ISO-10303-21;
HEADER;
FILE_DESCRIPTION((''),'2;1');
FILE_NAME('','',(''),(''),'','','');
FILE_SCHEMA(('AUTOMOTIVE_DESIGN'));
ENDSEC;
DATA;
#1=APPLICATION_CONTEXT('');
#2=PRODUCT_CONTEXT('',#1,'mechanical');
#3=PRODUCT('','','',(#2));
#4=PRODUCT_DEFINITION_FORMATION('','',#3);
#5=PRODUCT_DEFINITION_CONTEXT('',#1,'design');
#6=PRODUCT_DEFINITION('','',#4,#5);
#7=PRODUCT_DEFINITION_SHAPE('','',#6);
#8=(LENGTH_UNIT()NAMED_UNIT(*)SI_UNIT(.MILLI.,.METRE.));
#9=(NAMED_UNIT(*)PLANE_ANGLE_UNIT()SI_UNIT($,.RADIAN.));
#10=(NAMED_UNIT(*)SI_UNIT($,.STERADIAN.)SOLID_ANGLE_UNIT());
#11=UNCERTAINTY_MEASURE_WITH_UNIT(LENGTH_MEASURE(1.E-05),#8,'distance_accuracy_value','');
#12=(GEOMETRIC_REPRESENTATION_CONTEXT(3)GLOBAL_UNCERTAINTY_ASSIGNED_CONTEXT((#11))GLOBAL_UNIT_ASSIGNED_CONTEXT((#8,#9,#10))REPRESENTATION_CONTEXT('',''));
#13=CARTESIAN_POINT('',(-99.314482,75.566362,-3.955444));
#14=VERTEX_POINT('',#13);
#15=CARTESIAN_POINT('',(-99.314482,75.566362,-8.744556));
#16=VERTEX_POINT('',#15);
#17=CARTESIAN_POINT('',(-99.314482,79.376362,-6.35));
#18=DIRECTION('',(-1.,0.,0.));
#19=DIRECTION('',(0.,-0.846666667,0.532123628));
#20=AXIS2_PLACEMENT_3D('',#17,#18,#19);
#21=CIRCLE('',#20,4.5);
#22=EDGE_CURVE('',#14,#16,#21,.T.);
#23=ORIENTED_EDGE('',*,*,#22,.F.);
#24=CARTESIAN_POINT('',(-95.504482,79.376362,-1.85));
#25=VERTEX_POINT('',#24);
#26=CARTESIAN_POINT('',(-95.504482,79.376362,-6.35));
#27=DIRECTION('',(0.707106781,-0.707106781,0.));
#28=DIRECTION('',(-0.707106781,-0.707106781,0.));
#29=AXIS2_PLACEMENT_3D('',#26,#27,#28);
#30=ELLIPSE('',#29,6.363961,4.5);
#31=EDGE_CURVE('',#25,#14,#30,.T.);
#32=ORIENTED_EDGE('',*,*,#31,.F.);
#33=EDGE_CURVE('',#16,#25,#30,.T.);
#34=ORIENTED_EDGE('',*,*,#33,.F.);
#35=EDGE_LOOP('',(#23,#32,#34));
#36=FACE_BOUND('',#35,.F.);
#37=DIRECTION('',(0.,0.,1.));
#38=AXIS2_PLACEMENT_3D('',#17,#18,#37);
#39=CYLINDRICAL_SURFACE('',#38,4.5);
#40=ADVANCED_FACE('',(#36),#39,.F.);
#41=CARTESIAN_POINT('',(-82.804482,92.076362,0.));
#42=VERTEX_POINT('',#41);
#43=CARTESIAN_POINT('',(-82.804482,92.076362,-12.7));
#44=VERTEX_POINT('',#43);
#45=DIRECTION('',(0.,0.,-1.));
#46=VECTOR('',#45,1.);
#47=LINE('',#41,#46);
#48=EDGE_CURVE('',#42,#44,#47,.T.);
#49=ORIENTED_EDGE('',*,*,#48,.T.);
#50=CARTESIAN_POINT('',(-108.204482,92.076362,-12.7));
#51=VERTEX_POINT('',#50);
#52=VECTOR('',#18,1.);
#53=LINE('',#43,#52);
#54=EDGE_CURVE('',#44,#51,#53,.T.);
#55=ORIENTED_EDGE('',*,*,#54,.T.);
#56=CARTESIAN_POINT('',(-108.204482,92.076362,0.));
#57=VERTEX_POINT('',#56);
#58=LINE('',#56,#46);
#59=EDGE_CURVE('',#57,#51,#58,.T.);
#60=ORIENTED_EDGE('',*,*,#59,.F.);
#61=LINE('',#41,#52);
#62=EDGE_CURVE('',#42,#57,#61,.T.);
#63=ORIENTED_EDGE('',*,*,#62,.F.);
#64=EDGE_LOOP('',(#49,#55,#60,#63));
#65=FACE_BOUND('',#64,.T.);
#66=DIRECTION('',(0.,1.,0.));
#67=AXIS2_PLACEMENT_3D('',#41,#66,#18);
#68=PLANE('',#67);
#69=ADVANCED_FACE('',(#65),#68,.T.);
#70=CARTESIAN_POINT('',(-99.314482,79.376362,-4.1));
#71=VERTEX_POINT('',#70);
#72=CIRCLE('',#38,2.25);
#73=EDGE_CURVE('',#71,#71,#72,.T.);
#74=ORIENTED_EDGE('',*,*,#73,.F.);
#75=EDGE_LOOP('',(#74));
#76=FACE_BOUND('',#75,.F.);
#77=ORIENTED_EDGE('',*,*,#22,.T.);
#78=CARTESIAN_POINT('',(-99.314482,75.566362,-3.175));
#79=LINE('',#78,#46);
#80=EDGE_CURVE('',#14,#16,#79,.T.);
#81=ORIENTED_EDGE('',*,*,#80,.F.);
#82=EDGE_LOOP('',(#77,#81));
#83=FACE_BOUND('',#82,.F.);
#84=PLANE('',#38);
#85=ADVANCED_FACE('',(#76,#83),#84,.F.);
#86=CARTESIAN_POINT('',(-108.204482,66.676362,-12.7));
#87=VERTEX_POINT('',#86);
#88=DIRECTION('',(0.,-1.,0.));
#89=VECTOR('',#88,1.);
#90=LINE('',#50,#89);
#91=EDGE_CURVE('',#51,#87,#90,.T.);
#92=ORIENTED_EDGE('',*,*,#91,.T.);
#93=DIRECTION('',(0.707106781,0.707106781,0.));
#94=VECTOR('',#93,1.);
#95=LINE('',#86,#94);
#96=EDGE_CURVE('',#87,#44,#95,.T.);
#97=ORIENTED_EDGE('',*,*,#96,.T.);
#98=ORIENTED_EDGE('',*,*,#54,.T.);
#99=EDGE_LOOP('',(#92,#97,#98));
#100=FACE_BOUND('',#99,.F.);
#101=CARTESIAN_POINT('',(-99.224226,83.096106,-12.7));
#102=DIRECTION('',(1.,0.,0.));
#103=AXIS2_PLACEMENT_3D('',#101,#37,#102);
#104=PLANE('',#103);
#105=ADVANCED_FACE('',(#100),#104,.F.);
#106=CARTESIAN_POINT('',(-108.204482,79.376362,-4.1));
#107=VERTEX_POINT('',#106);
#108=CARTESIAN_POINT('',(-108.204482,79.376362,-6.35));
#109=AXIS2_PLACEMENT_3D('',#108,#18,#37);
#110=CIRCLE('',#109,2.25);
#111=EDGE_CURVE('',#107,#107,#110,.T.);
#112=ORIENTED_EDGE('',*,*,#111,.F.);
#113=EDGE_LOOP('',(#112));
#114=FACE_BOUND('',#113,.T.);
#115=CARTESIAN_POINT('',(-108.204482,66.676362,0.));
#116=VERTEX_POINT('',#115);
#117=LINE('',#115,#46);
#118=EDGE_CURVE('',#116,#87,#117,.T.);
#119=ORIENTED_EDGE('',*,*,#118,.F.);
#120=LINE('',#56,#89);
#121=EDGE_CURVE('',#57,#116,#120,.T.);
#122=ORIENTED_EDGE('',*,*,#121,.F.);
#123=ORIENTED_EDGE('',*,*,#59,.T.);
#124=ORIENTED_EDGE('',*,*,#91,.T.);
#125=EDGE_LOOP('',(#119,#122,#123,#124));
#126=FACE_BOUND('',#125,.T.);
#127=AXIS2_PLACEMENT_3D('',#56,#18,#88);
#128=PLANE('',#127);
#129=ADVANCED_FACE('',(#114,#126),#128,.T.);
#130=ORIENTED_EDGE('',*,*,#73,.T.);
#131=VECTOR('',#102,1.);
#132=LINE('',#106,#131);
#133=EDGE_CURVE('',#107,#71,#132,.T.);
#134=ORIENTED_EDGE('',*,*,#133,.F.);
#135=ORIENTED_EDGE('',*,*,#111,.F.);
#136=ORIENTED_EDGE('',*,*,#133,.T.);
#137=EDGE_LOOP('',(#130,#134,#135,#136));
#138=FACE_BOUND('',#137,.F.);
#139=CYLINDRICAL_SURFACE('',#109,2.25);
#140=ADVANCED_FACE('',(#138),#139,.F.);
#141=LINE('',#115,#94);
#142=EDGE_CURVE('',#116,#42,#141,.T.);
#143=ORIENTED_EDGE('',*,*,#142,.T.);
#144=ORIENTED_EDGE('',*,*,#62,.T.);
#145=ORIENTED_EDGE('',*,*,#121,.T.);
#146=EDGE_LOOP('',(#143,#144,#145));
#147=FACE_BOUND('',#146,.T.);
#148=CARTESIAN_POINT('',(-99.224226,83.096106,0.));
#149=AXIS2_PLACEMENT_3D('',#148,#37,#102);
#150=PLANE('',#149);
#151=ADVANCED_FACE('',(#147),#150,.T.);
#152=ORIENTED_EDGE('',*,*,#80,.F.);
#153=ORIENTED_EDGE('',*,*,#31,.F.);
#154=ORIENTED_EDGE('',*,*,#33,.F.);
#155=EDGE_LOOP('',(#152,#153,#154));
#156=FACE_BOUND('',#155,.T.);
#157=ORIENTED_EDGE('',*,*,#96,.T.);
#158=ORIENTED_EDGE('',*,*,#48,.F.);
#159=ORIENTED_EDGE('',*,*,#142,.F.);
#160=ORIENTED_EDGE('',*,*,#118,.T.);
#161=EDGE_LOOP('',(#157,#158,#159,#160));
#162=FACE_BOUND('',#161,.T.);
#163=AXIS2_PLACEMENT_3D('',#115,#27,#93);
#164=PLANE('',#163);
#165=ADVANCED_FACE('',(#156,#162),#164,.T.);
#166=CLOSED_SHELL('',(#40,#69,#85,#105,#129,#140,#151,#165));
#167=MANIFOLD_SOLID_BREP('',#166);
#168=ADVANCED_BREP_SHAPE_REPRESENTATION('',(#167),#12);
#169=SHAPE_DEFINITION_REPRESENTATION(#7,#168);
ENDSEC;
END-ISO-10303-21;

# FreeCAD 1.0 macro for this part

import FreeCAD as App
import Part
import Sketcher


def add_polygon(sketch, points):
    """Adds a closed chain of lines whose ends are joined by coincident constraints."""
    first, n = sketch.GeometryCount, len(points)
    for a, b in zip(points, points[1:] + points[:1]):
        sketch.addGeometry(Part.LineSegment(App.Vector(*a, 0), App.Vector(*b, 0)), False)
    for i in range(n):
        sketch.addConstraint(Sketcher.Constraint("Coincident", first + i, 2, first + (i + 1) % n, 1))

doc = App.newDocument("Part")
body = doc.addObject("PartDesign::Body", "Body")

sketch1 = doc.addObject("Sketcher::SketchObject", "Sketch")
body.addObject(sketch1)
sketch1.AttachmentSupport = (doc.XY_Plane, [""])
sketch1.MapMode = "FlatFace"
add_polygon(sketch1, [(-108, 92), (-108, 67), (-83, 92)])
sketch1.addConstraint([
    Sketcher.Constraint("Vertical", 0),
    Sketcher.Constraint("Horizontal", 2),
    Sketcher.Constraint("Equal", 2, 0),
    Sketcher.Constraint("DistanceX", 2, 2, 2, 1, 25.4),
    Sketcher.Constraint("DistanceY", -1, 1, 0, 2, 66.676362),
    Sketcher.Constraint("DistanceX", 0, 2, -1, 1, 108.204482),
])
pad1 = doc.addObject("PartDesign::Pad", "Pad")
body.addObject(pad1)
pad1.Profile = sketch1
pad1.Length = 12.7
pad1.Reversed = True

sketch2 = doc.addObject("Sketcher::SketchObject", "Sketch001")
body.addObject(sketch2)
sketch2.AttachmentSupport = (doc.YZ_Plane, [""])
sketch2.MapMode = "FlatFace"
sketch2.AttachmentOffset = App.Placement(App.Vector(0, 0, -108.204482), App.Rotation())
sketch2.addGeometry(Part.Circle(App.Vector(79.4, -6.3, 0), App.Vector(0, 0, 1), 2.2), False)
sketch2.addConstraint([
    Sketcher.Constraint("Diameter", 0, 4.5),
    Sketcher.Constraint("DistanceY", 0, 3, -1, 1, 6.35),
    Sketcher.Constraint("DistanceX", -1, 1, 0, 3, 79.376362),
])
pocket1 = doc.addObject("PartDesign::Pocket", "Pocket")
body.addObject(pocket1)
pocket1.Profile = sketch2
pocket1.Type = "ThroughAll"
pocket1.Reversed = True

sketch3 = doc.addObject("Sketcher::SketchObject", "Sketch002")
body.addObject(sketch3)
sketch3.AttachmentSupport = (doc.YZ_Plane, [""])
sketch3.MapMode = "FlatFace"
sketch3.AttachmentOffset = App.Placement(App.Vector(0, 0, -99.314482), App.Rotation())
sketch3.addGeometry(Part.Circle(App.Vector(79.4, -6.3, 0), App.Vector(0, 0, 1), 4.5), False)
sketch3.addConstraint([
    Sketcher.Constraint("Diameter", 0, 9.0),
    Sketcher.Constraint("DistanceY", 0, 3, -1, 1, 6.35),
    Sketcher.Constraint("DistanceX", -1, 1, 0, 3, 79.376362),
])
pocket2 = doc.addObject("PartDesign::Pocket", "Pocket001")
body.addObject(pocket2)
pocket2.Profile = sketch3
pocket2.Type = "ThroughAll"
pocket2.Reversed = True

doc.recompute()
